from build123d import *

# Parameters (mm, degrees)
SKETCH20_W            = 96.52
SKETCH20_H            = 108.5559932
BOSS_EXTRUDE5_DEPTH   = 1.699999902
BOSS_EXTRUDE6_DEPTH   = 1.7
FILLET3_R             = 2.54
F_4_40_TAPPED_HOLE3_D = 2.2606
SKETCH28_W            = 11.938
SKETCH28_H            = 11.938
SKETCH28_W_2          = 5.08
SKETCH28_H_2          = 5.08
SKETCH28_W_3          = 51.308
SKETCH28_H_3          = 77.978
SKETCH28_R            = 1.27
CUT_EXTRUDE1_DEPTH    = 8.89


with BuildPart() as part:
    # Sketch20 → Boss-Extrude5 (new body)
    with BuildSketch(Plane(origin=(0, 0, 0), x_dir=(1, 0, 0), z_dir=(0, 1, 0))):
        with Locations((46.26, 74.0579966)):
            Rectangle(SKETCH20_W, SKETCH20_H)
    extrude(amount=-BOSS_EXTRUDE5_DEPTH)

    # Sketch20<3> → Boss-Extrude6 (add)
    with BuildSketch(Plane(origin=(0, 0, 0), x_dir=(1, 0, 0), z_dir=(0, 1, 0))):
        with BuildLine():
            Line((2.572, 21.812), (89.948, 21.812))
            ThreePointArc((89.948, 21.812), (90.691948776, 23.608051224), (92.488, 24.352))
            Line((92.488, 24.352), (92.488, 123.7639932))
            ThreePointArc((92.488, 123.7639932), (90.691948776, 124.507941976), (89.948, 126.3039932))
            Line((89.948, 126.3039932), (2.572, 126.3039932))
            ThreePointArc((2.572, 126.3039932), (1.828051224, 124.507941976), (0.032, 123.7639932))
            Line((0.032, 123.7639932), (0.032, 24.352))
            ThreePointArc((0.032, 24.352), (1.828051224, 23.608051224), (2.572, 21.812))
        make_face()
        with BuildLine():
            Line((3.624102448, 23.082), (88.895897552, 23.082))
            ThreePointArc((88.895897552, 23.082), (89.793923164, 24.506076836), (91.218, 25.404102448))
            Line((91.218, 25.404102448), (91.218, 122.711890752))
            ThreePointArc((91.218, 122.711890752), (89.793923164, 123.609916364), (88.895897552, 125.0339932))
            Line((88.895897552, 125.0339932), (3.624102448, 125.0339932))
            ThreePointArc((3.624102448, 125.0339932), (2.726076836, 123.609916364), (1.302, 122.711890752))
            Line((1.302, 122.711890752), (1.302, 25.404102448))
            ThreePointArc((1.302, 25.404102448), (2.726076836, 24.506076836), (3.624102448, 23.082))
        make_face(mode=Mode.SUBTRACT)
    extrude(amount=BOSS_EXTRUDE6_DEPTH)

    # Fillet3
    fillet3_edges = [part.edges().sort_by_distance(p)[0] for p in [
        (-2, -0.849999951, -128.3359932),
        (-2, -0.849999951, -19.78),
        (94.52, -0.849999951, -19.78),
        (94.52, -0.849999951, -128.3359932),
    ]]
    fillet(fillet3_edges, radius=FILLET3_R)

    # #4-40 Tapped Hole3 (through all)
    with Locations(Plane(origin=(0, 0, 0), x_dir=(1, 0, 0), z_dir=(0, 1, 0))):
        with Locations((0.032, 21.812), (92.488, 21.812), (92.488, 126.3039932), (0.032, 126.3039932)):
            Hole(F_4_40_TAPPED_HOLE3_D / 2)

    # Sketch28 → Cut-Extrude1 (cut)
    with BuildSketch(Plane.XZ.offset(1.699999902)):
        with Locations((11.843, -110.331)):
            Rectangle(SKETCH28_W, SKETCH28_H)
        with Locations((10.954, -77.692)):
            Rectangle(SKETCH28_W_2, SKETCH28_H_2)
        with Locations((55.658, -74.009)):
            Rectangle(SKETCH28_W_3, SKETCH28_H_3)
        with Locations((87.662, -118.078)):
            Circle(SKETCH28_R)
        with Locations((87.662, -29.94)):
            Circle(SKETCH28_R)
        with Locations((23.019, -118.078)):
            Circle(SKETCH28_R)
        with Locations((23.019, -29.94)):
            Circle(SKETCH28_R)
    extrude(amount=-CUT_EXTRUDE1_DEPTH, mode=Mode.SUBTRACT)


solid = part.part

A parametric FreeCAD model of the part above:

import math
import FreeCAD as App
import Part
import Sketcher
from FreeCAD import Vector
Q = App.Units.Quantity


def edges_at(feature, points):
    """Names of the edges that pass closest to the given points."""
    edges = feature.Shape.Edges
    near = lambda p: min(range(len(edges)), key=lambda i: edges[i].distToShape(Part.Vertex(*p))[0])
    return sorted({f"Edge{near(p) + 1}" for p in points})

doc = App.newDocument("Part")
body = doc.addObject("PartDesign::Body", "Body")

# Sketch on XZ plane
sketch1 = doc.addObject("Sketcher::SketchObject", "Sketch")
body.addObject(sketch1)
sketch1.AttachmentSupport = (doc.XZ_Plane, [""])
sketch1.MapMode = "FlatFace"
sketch1.addGeometry(Part.LineSegment(Vector(-2, -128, 0), Vector(-2, -20, 0)), False)
sketch1.addGeometry(Part.LineSegment(Vector(-2, -20, 0), Vector(95, -20, 0)), False)
sketch1.addGeometry(Part.LineSegment(Vector(95, -20, 0), Vector(95, -128, 0)), False)
sketch1.addGeometry(Part.LineSegment(Vector(95, -128, 0), Vector(-2, -128, 0)), False)
sketch1.addConstraint(Sketcher.Constraint("Coincident", 0, 2, 1, 1))
sketch1.addConstraint(Sketcher.Constraint("Coincident", 1, 2, 2, 1))
sketch1.addConstraint(Sketcher.Constraint("Coincident", 2, 2, 3, 1))
sketch1.addConstraint(Sketcher.Constraint("Coincident", 3, 2, 0, 1))
sketch1.addConstraint(Sketcher.Constraint("Vertical", 0))
sketch1.addConstraint(Sketcher.Constraint("Horizontal", 1))
sketch1.addConstraint(Sketcher.Constraint("Vertical", 2))
sketch1.addConstraint(Sketcher.Constraint("Horizontal", 3))
sketch1.addConstraint(Sketcher.Constraint("DistanceX", 1, 1, 1, 2, Q("3.8 in")))
sketch1.addConstraint(Sketcher.Constraint("DistanceX", 0, 2, -1, 1, 2.0))
sketch1.addConstraint(Sketcher.Constraint("DistanceY", 0, 2, -1, 1, 19.78))
sketch1.addConstraint(Sketcher.Constraint("DistanceY", 0, 1, 0, 2, 108.555993))
pad1 = doc.addObject("PartDesign::Pad", "Pad")
body.addObject(pad1)
pad1.Profile = sketch1
pad1.Length = 1.7

# Sketch on XZ plane
sketch2 = doc.addObject("Sketcher::SketchObject", "Sketch001")
body.addObject(sketch2)
sketch2.AttachmentSupport = (doc.XZ_Plane, [""])
sketch2.MapMode = "FlatFace"
sketch2.addGeometry(Part.LineSegment(Vector(2.6, -21.8, 0), Vector(89.9, -21.8, 0)), False)
sketch2.addGeometry(Part.ArcOfCircle(Part.Circle(Vector(92.5, -21.8, 0), Vector(0, 0, 1), 2.5), math.radians(-180), math.radians(-90)), False)
sketch2.addGeometry(Part.LineSegment(Vector(92.5, -24.4, 0), Vector(92.5, -123.8, 0)), False)
sketch2.addGeometry(Part.ArcOfCircle(Part.Circle(Vector(92.5, -126.3, 0), Vector(0, 0, 1), 2.5), math.radians(90), math.radians(180)), False)
sketch2.addGeometry(Part.LineSegment(Vector(89.9, -126.3, 0), Vector(2.6, -126.3, 0)), False)
sketch2.addGeometry(Part.ArcOfCircle(Part.Circle(Vector(0, -126.3, 0), Vector(0, 0, 1), 2.5), math.radians(0), math.radians(90)), False)
sketch2.addGeometry(Part.LineSegment(Vector(0, -123.8, 0), Vector(0, -24.4, 0)), False)
sketch2.addGeometry(Part.ArcOfCircle(Part.Circle(Vector(0, -21.8, 0), Vector(0, 0, 1), 2.5), math.radians(-90), math.radians(0)), False)
sketch2.addGeometry(Part.LineSegment(Vector(88.9, -23.1, 0), Vector(3.6, -23.1, 0)), False)
sketch2.addGeometry(Part.ArcOfCircle(Part.Circle(Vector(0, -21.8, 0), Vector(0, 0, 1), 3.8), math.radians(-71), math.radians(-19)), False)
sketch2.addGeometry(Part.LineSegment(Vector(1.3, -25.4, 0), Vector(1.3, -122.7, 0)), False)
sketch2.addGeometry(Part.ArcOfCircle(Part.Circle(Vector(0, -126.3, 0), Vector(0, 0, 1), 3.8), math.radians(19), math.radians(71)), False)
sketch2.addGeometry(Part.LineSegment(Vector(3.6, -125, 0), Vector(88.9, -125, 0)), False)
sketch2.addGeometry(Part.ArcOfCircle(Part.Circle(Vector(92.5, -126.3, 0), Vector(0, 0, 1), 3.8), math.radians(109), math.radians(161)), False)
sketch2.addGeometry(Part.LineSegment(Vector(91.2, -122.7, 0), Vector(91.2, -25.4, 0)), False)
sketch2.addGeometry(Part.ArcOfCircle(Part.Circle(Vector(92.5, -21.8, 0), Vector(0, 0, 1), 3.8), math.radians(-161), math.radians(-109)), False)
sketch2.addConstraint(Sketcher.Constraint("Coincident", 0, 2, 1, 1))
sketch2.addConstraint(Sketcher.Constraint("Coincident", 1, 2, 2, 1))
sketch2.addConstraint(Sketcher.Constraint("Coincident", 2, 2, 3, 1))
sketch2.addConstraint(Sketcher.Constraint("Coincident", 3, 2, 4, 1))
sketch2.addConstraint(Sketcher.Constraint("Coincident", 4, 2, 5, 1))
sketch2.addConstraint(Sketcher.Constraint("Coincident", 5, 2, 6, 1))
sketch2.addConstraint(Sketcher.Constraint("Coincident", 6, 2, 7, 1))
sketch2.addConstraint(Sketcher.Constraint("Coincident", 7, 2, 0, 1))
sketch2.addConstraint(Sketcher.Constraint("Coincident", 8, 2, 9, 2))
sketch2.addConstraint(Sketcher.Constraint("Coincident", 9, 1, 10, 1))
sketch2.addConstraint(Sketcher.Constraint("Coincident", 10, 2, 11, 2))
sketch2.addConstraint(Sketcher.Constraint("Coincident", 11, 1, 12, 1))
sketch2.addConstraint(Sketcher.Constraint("Coincident", 12, 2, 13, 2))
sketch2.addConstraint(Sketcher.Constraint("Coincident", 13, 1, 14, 1))
sketch2.addConstraint(Sketcher.Constraint("Coincident", 14, 2, 15, 2))
sketch2.addConstraint(Sketcher.Constraint("Coincident", 15, 1, 8, 1))
sketch2.addConstraint(Sketcher.Constraint("Horizontal", 0))
sketch2.addConstraint(Sketcher.Constraint("Vertical", 2))
sketch2.addConstraint(Sketcher.Constraint("Horizontal", 4))
sketch2.addConstraint(Sketcher.Constraint("Vertical", 6))
sketch2.addConstraint(Sketcher.Constraint("Horizontal", 8))
sketch2.addConstraint(Sketcher.Constraint("Vertical", 10))
sketch2.addConstraint(Sketcher.Constraint("Horizontal", 12))
sketch2.addConstraint(Sketcher.Constraint("Vertical", 14))
sketch2.addConstraint(Sketcher.Constraint("Coincident", 9, 3, 7, 3))
sketch2.addConstraint(Sketcher.Constraint("Coincident", 11, 3, 5, 3))
sketch2.addConstraint(Sketcher.Constraint("Coincident", 13, 3, 3, 3))
sketch2.addConstraint(Sketcher.Constraint("Coincident", 15, 3, 1, 3))
sketch2.addConstraint(Sketcher.Constraint("Equal", 1, 3))
sketch2.addConstraint(Sketcher.Constraint("Equal", 3, 5))
sketch2.addConstraint(Sketcher.Constraint("Equal", 5, 7))
sketch2.addConstraint(Sketcher.Constraint("Equal", 9, 11))
sketch2.addConstraint(Sketcher.Constraint("Equal", 11, 13))
sketch2.addConstraint(Sketcher.Constraint("Equal", 13, 15))
sketch2.addConstraint(Sketcher.Constraint("Horizontal", 3, 3, 5, 3))
sketch2.addConstraint(Sketcher.Constraint("Horizontal", 1, 3, 7, 3))
sketch2.addConstraint(Sketcher.Constraint("Horizontal", 15, 3, 0, 2))
sketch2.addConstraint(Sketcher.Constraint("Horizontal", 13, 3, 3, 2))
sketch2.addConstraint(Sketcher.Constraint("Horizontal", 10, 2, 13, 1))
sketch2.addConstraint(Sketcher.Constraint("Horizontal", 9, 1, 14, 2))
sketch2.addConstraint(Sketcher.Constraint("Vertical", 1, 3, 3, 3))
sketch2.addConstraint(Sketcher.Constraint("Vertical", 15, 3, 1, 2))
sketch2.addConstraint(Sketcher.Constraint("Vertical", 11, 3, 5, 2))
sketch2.addConstraint(Sketcher.Constraint("Vertical", 8, 2, 11, 1))
sketch2.addConstraint(Sketcher.Constraint("Radius", 1, Q("0.1 in")))
sketch2.addConstraint(Sketcher.Constraint("Radius", 9, Q("0.15 in")))
sketch2.addConstraint(Sketcher.Constraint("DistanceX", 0, 1, 0, 2, Q("3.44 in")))
sketch2.addConstraint(Sketcher.Constraint("DistanceY", 8, 2, 7, 2, Q("0.05 in")))
sketch2.addConstraint(Sketcher.Constraint("DistanceX", 6, 2, 9, 1, Q("0.05 in")))
sketch2.addConstraint(Sketcher.Constraint("DistanceY", 10, 2, 10, 1, 97.307788))
sketch2.addConstraint(Sketcher.Constraint("DistanceX", -1, 1, 1, 3, 92.488))
sketch2.addConstraint(Sketcher.Constraint("DistanceY", 1, 3, -1, 1, 21.812))
pad2 = doc.addObject("PartDesign::Pad", "Pad001")
body.addObject(pad2)
pad2.Profile = sketch2
pad2.Length = 1.7
pad2.Reversed = True
doc.recompute()

fillet = doc.addObject("PartDesign::Fillet", "Fillet")
body.addObject(fillet)
fillet.Base = (pad2, edges_at(pad2, [
    (-2, -0.85, -128.336),
    (-2, -0.85, -19.78),
    (94.52, -0.85, -19.78),
    (94.52, -0.85, -128.336),
]))
fillet.Radius = Q("0.1 in")

# Sketch on XZ plane
sketch3 = doc.addObject("Sketcher::SketchObject", "Sketch002")
body.addObject(sketch3)
sketch3.AttachmentSupport = (doc.XZ_Plane, [""])
sketch3.MapMode = "FlatFace"
sketch3.addGeometry(Part.Circle(Vector(0, -21.8, 0), Vector(0, 0, 1), 1.1), False)
sketch3.addGeometry(Part.Circle(Vector(92.5, -21.8, 0), Vector(0, 0, 1), 1.1), False)
sketch3.addGeometry(Part.Circle(Vector(92.5, -126.3, 0), Vector(0, 0, 1), 1.1), False)
sketch3.addGeometry(Part.Circle(Vector(0, -126.3, 0), Vector(0, 0, 1), 1.1), False)
sketch3.addConstraint(Sketcher.Constraint("Equal", 0, 1))
sketch3.addConstraint(Sketcher.Constraint("Equal", 1, 2))
sketch3.addConstraint(Sketcher.Constraint("Equal", 2, 3))
sketch3.addConstraint(Sketcher.Constraint("Horizontal", 0, 3, 1, 3))
sketch3.addConstraint(Sketcher.Constraint("Horizontal", 2, 3, 3, 3))
sketch3.addConstraint(Sketcher.Constraint("Vertical", 1, 3, 2, 3))
sketch3.addConstraint(Sketcher.Constraint("Vertical", 0, 3, 3, 3))
sketch3.addConstraint(Sketcher.Constraint("Diameter", 0, Q("0.089 in")))
sketch3.addConstraint(Sketcher.Constraint("DistanceX", 0, 3, 1, 3, Q("3.64 in")))
sketch3.addConstraint(Sketcher.Constraint("DistanceX", -1, 1, 0, 3, 0.032))
sketch3.addConstraint(Sketcher.Constraint("DistanceY", 0, 3, -1, 1, 21.812))
sketch3.addConstraint(Sketcher.Constraint("DistanceY", 2, 3, -1, 1, 126.303993))
doc.recompute()
hole = doc.addObject("PartDesign::Hole", "Hole")
body.addObject(hole)
hole.Profile = sketch3
hole.ThreadType = "None"
hole.Diameter = Q("0.089 in")
hole.DepthType = "ThroughAll"
hole.Reversed = True

# Sketch on XZ plane
sketch4 = doc.addObject("Sketcher::SketchObject", "Sketch003")
body.addObject(sketch4)
sketch4.AttachmentSupport = (doc.XZ_Plane, [""])
sketch4.MapMode = "FlatFace"
sketch4.AttachmentOffset = App.Placement(Vector(0, 0, 1.7), App.Rotation())
sketch4.addGeometry(Part.LineSegment(Vector(5.9, -104.4, 0), Vector(5.9, -116.3, 0)), False)
sketch4.addGeometry(Part.LineSegment(Vector(5.9, -116.3, 0), Vector(17.8, -116.3, 0)), False)
sketch4.addGeometry(Part.LineSegment(Vector(17.8, -116.3, 0), Vector(17.8, -104.4, 0)), False)
sketch4.addGeometry(Part.LineSegment(Vector(17.8, -104.4, 0), Vector(5.9, -104.4, 0)), False)
sketch4.addGeometry(Part.LineSegment(Vector(8.4, -75.2, 0), Vector(8.4, -80.2, 0)), False)
sketch4.addGeometry(Part.LineSegment(Vector(8.4, -80.2, 0), Vector(13.5, -80.2, 0)), False)
sketch4.addGeometry(Part.LineSegment(Vector(13.5, -80.2, 0), Vector(13.5, -75.2, 0)), False)
sketch4.addGeometry(Part.LineSegment(Vector(13.5, -75.2, 0), Vector(8.4, -75.2, 0)), False)
sketch4.addGeometry(Part.LineSegment(Vector(30, -35, 0), Vector(30, -113, 0)), False)
sketch4.addGeometry(Part.LineSegment(Vector(30, -113, 0), Vector(81.3, -113, 0)), False)
sketch4.addGeometry(Part.LineSegment(Vector(81.3, -113, 0), Vector(81.3, -35, 0)), False)
sketch4.addGeometry(Part.LineSegment(Vector(81.3, -35, 0), Vector(30, -35, 0)), False)
sketch4.addGeometry(Part.Circle(Vector(87.7, -118.1, 0), Vector(0, 0, 1), 1.3), False)
sketch4.addGeometry(Part.Circle(Vector(87.7, -29.9, 0), Vector(0, 0, 1), 1.3), False)
sketch4.addGeometry(Part.Circle(Vector(23, -118.1, 0), Vector(0, 0, 1), 1.3), False)
sketch4.addGeometry(Part.Circle(Vector(23, -29.9, 0), Vector(0, 0, 1), 1.3), False)
sketch4.addConstraint(Sketcher.Constraint("Coincident", 0, 2, 1, 1))
sketch4.addConstraint(Sketcher.Constraint("Coincident", 1, 2, 2, 1))
sketch4.addConstraint(Sketcher.Constraint("Coincident", 2, 2, 3, 1))
sketch4.addConstraint(Sketcher.Constraint("Coincident", 3, 2, 0, 1))
sketch4.addConstraint(Sketcher.Constraint("Coincident", 4, 2, 5, 1))
sketch4.addConstraint(Sketcher.Constraint("Coincident", 5, 2, 6, 1))
sketch4.addConstraint(Sketcher.Constraint("Coincident", 6, 2, 7, 1))
sketch4.addConstraint(Sketcher.Constraint("Coincident", 7, 2, 4, 1))
sketch4.addConstraint(Sketcher.Constraint("Coincident", 8, 2, 9, 1))
sketch4.addConstraint(Sketcher.Constraint("Coincident", 9, 2, 10, 1))
sketch4.addConstraint(Sketcher.Constraint("Coincident", 10, 2, 11, 1))
sketch4.addConstraint(Sketcher.Constraint("Coincident", 11, 2, 8, 1))
sketch4.addConstraint(Sketcher.Constraint("Vertical", 0))
sketch4.addConstraint(Sketcher.Constraint("Horizontal", 1))
sketch4.addConstraint(Sketcher.Constraint("Vertical", 2))
sketch4.addConstraint(Sketcher.Constraint("Horizontal", 3))
sketch4.addConstraint(Sketcher.Constraint("Vertical", 4))
sketch4.addConstraint(Sketcher.Constraint("Horizontal", 5))
sketch4.addConstraint(Sketcher.Constraint("Vertical", 6))
sketch4.addConstraint(Sketcher.Constraint("Horizontal", 7))
sketch4.addConstraint(Sketcher.Constraint("Vertical", 8))
sketch4.addConstraint(Sketcher.Constraint("Horizontal", 9))
sketch4.addConstraint(Sketcher.Constraint("Vertical", 10))
sketch4.addConstraint(Sketcher.Constraint("Horizontal", 11))
sketch4.addConstraint(Sketcher.Constraint("Equal", 12, 13))
sketch4.addConstraint(Sketcher.Constraint("Equal", 13, 14))
sketch4.addConstraint(Sketcher.Constraint("Equal", 14, 15))
sketch4.addConstraint(Sketcher.Constraint("Horizontal", 12, 3, 14, 3))
sketch4.addConstraint(Sketcher.Constraint("Horizontal", 13, 3, 15, 3))
sketch4.addConstraint(Sketcher.Constraint("Vertical", 12, 3, 13, 3))
sketch4.addConstraint(Sketcher.Constraint("Vertical", 14, 3, 15, 3))
sketch4.addConstraint(Sketcher.Constraint("Equal", 3, 0))
sketch4.addConstraint(Sketcher.Constraint("Equal", 7, 4))
sketch4.addConstraint(Sketcher.Constraint("Diameter", 12, Q("0.1 in")))
sketch4.addConstraint(Sketcher.Constraint("DistanceX", 5, 1, 5, 2, Q("0.2 in")))
sketch4.addConstraint(Sketcher.Constraint("DistanceX", 1, 1, 1, 2, Q("0.47 in")))
sketch4.addConstraint(Sketcher.Constraint("DistanceX", 9, 1, 9, 2, Q("2.02 in")))
sketch4.addConstraint(Sketcher.Constraint("DistanceY", 8, 2, 8, 1, Q("3.07 in")))
sketch4.addConstraint(Sketcher.Constraint("DistanceY", 0, 2, 15, 3, Q("3.4 in")))
sketch4.addConstraint(Sketcher.Constraint("DistanceX", 3, 2, 4, 2, Q("0.1 in")))
sketch4.addConstraint(Sketcher.Constraint("DistanceY", 14, 3, 8, 2, Q("0.2 in")))
sketch4.addConstraint(Sketcher.Constraint("DistanceX", 1, 2, 9, 2, Q("2.5 in")))
sketch4.addConstraint(Sketcher.Constraint("DistanceY", 10, 2, 13, 3, Q("0.2 in")))
sketch4.addConstraint(Sketcher.Constraint("DistanceX", 0, 2, 12, 3, Q("3.22 in")))
sketch4.addConstraint(Sketcher.Constraint("DistanceY", 3, 2, 4, 2, Q("0.95 in")))
sketch4.addConstraint(Sketcher.Constraint("DistanceX", 14, 3, 12, 3, Q("2.545 in")))
sketch4.addConstraint(Sketcher.Constraint("DistanceX", -1, 1, 12, 3, 87.662))
sketch4.addConstraint(Sketcher.Constraint("DistanceY", 12, 3, -1, 1, 118.078))
pocket1 = doc.addObject("PartDesign::Pocket", "Pocket")
body.addObject(pocket1)
pocket1.Profile = sketch4
pocket1.Length = Q("0.35 in")

doc.recompute()
